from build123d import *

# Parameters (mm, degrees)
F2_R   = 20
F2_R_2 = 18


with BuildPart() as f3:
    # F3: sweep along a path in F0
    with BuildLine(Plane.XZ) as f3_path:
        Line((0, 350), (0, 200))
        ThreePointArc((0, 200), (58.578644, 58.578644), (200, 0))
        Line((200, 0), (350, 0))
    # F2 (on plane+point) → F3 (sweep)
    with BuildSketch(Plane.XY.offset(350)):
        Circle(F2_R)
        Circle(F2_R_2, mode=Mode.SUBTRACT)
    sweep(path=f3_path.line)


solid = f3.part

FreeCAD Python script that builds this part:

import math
import FreeCAD as App
import Part
import Sketcher

V = App.Vector

doc = App.newDocument("Part")
body = doc.addObject("PartDesign::Body", "Body")

sketch1 = doc.addObject("Sketcher::SketchObject", "Sketch")
body.addObject(sketch1)
sketch1.AttachmentSupport = (doc.XY_Plane, [""])
sketch1.MapMode = "FlatFace"
sketch1.AttachmentOffset = App.Placement(V(0, 0, 350), App.Rotation())
sketch1.addGeometry([
    Part.Circle(V(0, 0, 0), V(0, 0, 1), 20),
    Part.Circle(V(0, 0, 0), V(0, 0, 1), 18),
], False)
sketch1.addConstraint([
    Sketcher.Constraint("Coincident", 0, 3, -1, 1),
    Sketcher.Constraint("Coincident", 1, 3, -1, 1),
    Sketcher.Constraint("Diameter", 0, 40.0),
    Sketcher.Constraint("Diameter", 1, 36.0),
])

sketch2 = doc.addObject("Sketcher::SketchObject", "Sketch001")
body.addObject(sketch2)
sketch2.AttachmentSupport = (doc.XZ_Plane, [""])
sketch2.MapMode = "FlatFace"
sketch2.addGeometry([
    Part.LineSegment(V(0, 350, 0), V(0, 200, 0)),
    Part.ArcOfCircle(Part.Circle(V(200, 200, 0), V(0, 0, 1), 200), math.radians(-180), math.radians(-90)),
    Part.LineSegment(V(200, 0, 0), V(350, 0, 0)),
], False)
sketch2.addConstraint([
    Sketcher.Constraint("Tangent", 0, 2, 1, 1),
    Sketcher.Constraint("Tangent", 1, 2, 2, 1),
    Sketcher.Constraint("Vertical", 0),
    Sketcher.Constraint("Horizontal", 2),
    Sketcher.Constraint("PointOnObject", 0, 1, -2),
    Sketcher.Constraint("PointOnObject", 1, 2, -1),
    Sketcher.Constraint("Equal", 2, 0),
    Sketcher.Constraint("Radius", 1, 200.000001),
    Sketcher.Constraint("DistanceX", 2, 1, 2, 2, 150.0),
])
doc.recompute()

additivepipe = doc.addObject("PartDesign::AdditivePipe", "AdditivePipe")
body.addObject(additivepipe)
additivepipe.Profile = sketch1
additivepipe.Spine = (sketch2, ["Edge1", "Edge2", "Edge3"])

doc.recompute()
